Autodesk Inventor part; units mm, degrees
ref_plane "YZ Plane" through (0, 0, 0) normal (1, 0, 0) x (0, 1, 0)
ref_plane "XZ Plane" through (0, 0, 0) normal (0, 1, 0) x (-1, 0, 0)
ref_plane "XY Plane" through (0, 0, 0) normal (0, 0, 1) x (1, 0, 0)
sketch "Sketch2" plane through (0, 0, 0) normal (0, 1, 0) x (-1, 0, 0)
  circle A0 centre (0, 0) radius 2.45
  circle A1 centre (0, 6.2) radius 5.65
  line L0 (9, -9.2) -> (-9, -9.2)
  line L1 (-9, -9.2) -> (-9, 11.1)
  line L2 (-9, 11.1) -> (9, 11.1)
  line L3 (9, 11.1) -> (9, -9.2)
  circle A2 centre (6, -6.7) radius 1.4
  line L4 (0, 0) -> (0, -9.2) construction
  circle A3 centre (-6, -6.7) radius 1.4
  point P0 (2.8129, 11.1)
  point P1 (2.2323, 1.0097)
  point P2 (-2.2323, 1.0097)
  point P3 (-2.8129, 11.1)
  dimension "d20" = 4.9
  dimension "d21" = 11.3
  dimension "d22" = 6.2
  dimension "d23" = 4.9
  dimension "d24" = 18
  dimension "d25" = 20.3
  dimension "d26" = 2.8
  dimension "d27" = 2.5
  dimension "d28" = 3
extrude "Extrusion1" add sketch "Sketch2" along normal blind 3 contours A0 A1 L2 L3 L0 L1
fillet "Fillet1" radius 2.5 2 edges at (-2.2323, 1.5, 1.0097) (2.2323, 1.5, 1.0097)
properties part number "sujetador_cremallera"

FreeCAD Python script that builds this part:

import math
import FreeCAD as App
import Part
import Sketcher

V = App.Vector


def edges_at(feature, points):
    """Names of the edges that pass closest to the given points."""
    edges = feature.Shape.Edges
    near = lambda p: min(range(len(edges)), key=lambda i: edges[i].distToShape(Part.Vertex(*p))[0])
    return sorted({f"Edge{near(p) + 1}" for p in points})

doc = App.newDocument("Part")
body = doc.addObject("PartDesign::Body", "Body")

sketch1 = body.newObject("Sketcher::SketchObject", "Sketch")
sketch1.AttachmentSupport = (doc.getObject("XZ_Plane"), [""])
sketch1.MapMode = "FlatFace"
sketch1.addGeometry([
    Part.ArcOfCircle(Part.Circle(V(0, 0, 0), V(0, 0, 1), 2.45), math.radians(155.662346), math.radians(384.337654)),
    Part.ArcOfCircle(Part.Circle(V(0, 6.2, 0), V(0, 0, 1), 5.65), math.radians(-66.728231), math.radians(60.141391)),
    Part.LineSegment(V(2.812917, 11.1, 0), V(9, 11.1, 0)),
    Part.LineSegment(V(9, 11.1, 0), V(9, -9.2, 0)),
    Part.LineSegment(V(9, -9.2, 0), V(-9, -9.2, 0)),
    Part.LineSegment(V(-9, -9.2, 0), V(-9, 11.1, 0)),
    Part.LineSegment(V(-9, 11.1, 0), V(-2.812917, 11.1, 0)),
    Part.ArcOfCircle(Part.Circle(V(0, 6.2, 0), V(0, 0, 1), 5.65), math.radians(119.858609), math.radians(246.728231)),
    Part.Circle(V(6, -6.7, 0), V(0, 0, 1), 1.4),
    Part.Circle(V(-6, -6.7, 0), V(0, 0, 1), 1.4),
], False)
sketch1.addConstraint([
    Sketcher.Constraint("Coincident", 0, 2, 1, 1),
    Sketcher.Constraint("Coincident", 1, 2, 2, 1),
    Sketcher.Constraint("Coincident", 2, 2, 3, 1),
    Sketcher.Constraint("Coincident", 3, 2, 4, 1),
    Sketcher.Constraint("Coincident", 4, 2, 5, 1),
    Sketcher.Constraint("Coincident", 5, 2, 6, 1),
    Sketcher.Constraint("Coincident", 6, 2, 7, 1),
    Sketcher.Constraint("Coincident", 7, 2, 0, 1),
    Sketcher.Constraint("Horizontal", 2),
    Sketcher.Constraint("Vertical", 3),
    Sketcher.Constraint("Horizontal", 4),
    Sketcher.Constraint("Vertical", 5),
    Sketcher.Constraint("Horizontal", 6),
    Sketcher.Constraint("Coincident", 0, 3, -1, 1),
    Sketcher.Constraint("Coincident", 7, 3, 1, 3),
    Sketcher.Constraint("Equal", 1, 7),
    Sketcher.Constraint("Equal", 8, 9),
    Sketcher.Constraint("Symmetric", 8, 3, 9, 3, -2),
    Sketcher.Constraint("Symmetric", 2, 2, 5, 2, -2),
    Sketcher.Constraint("PointOnObject", 1, 3, -2),
    Sketcher.Constraint("Diameter", 8, 2.8),
    Sketcher.Constraint("DistanceX", 4, 2, 4, 1, 18.0),
    Sketcher.Constraint("Radius", 0, 2.45),
    Sketcher.Constraint("Radius", 1, 5.65),
    Sketcher.Constraint("DistanceY", 3, 2, 3, 1, 20.3),
    Sketcher.Constraint("DistanceX", 8, 3, 3, 2, 3.0),
    Sketcher.Constraint("DistanceY", -1, 1, 1, 3, 6.2),
    Sketcher.Constraint("DistanceY", 1, 3, 1, 2, 4.9),
    Sketcher.Constraint("DistanceY", 3, 2, 8, 3, 2.5),
])
pad1 = body.newObject("PartDesign::Pad", "Pad")
pad1.Profile = sketch1
pad1.Length = 3
pad1.Reversed = True
doc.recompute()

fillet = body.newObject("PartDesign::Fillet", "Fillet")
fillet.Base = (pad1, edges_at(pad1, [(-2.232, 1.5, 1.01), (2.232, 1.5, 1.01)]))
fillet.Radius = 2.5

doc.recompute()
